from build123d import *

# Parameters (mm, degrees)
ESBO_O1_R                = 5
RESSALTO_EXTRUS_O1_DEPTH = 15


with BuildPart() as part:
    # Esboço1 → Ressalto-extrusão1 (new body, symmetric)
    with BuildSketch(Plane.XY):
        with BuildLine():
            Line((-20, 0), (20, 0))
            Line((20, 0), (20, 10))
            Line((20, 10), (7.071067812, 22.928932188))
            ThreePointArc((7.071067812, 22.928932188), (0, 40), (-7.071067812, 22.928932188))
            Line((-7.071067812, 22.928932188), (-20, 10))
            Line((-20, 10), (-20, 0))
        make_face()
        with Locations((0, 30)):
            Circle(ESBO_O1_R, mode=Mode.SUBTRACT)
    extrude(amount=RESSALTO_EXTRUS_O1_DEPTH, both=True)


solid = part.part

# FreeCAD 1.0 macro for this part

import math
import FreeCAD as App
import Part
import Sketcher
from FreeCAD import Vector

doc = App.newDocument("Part")
body = doc.addObject("PartDesign::Body", "Body")

# Sketch on XY plane
sketch1 = body.newObject("Sketcher::SketchObject", "Sketch")
sketch1.AttachmentSupport = (doc.getObject("XY_Plane"), [""])
sketch1.MapMode = "FlatFace"
sketch1.addGeometry([
    Part.LineSegment(Vector(-20, 0, 0), Vector(20, 0, 0)),  # 0
    Part.LineSegment(Vector(20, 0, 0), Vector(20, 10, 0)),  # 1
    Part.LineSegment(Vector(20, 10, 0), Vector(7, 23, 0)),  # 2
    Part.ArcOfCircle(Part.Circle(Vector(0, 30, 0), Vector(0, 0, 1), 10), math.radians(-45), math.radians(225)),  # 3
    Part.LineSegment(Vector(-7, 23, 0), Vector(-20, 10, 0)),  # 4
    Part.LineSegment(Vector(-20, 10, 0), Vector(-20, 0, 0)),  # 5
    Part.Circle(Vector(0, 30, 0), Vector(0, 0, 1), 5),  # 6
], False)
sketch1.addConstraint([
    Sketcher.Constraint("Coincident", 0, 2, 1, 1),
    Sketcher.Constraint("Coincident", 1, 2, 2, 1),
    Sketcher.Constraint("Coincident", 2, 2, 3, 1),
    Sketcher.Constraint("Coincident", 3, 2, 4, 1),
    Sketcher.Constraint("Coincident", 4, 2, 5, 1),
    Sketcher.Constraint("Coincident", 5, 2, 0, 1),
    Sketcher.Constraint("Horizontal", 0),
    Sketcher.Constraint("Vertical", 1),
    Sketcher.Constraint("Vertical", 5),
    Sketcher.Constraint("Coincident", 6, 3, 3, 3),
    Sketcher.Constraint("Symmetric", 0, 2, 5, 2, -1, 1),
    Sketcher.Constraint("Symmetric", 2, 2, 3, 2, -2),
    Sketcher.Constraint("Perpendicular", 2, 4),
    Sketcher.Constraint("Horizontal", 1, 2, 4, 2),
    Sketcher.Constraint("Diameter", 6, 10.0),
    Sketcher.Constraint("Radius", 3, 10.0),
    Sketcher.Constraint("DistanceX", 0, 1, 0, 2, 40.0),
    Sketcher.Constraint("DistanceY", 1, 1, 1, 2, 10.0),
    Sketcher.Constraint("DistanceY", -1, 1, 3, 3, 30.0),
])
pad1 = body.newObject("PartDesign::Pad", "Pad")
pad1.Profile = sketch1
pad1.Length = 30
pad1.Midplane = True

doc.recompute()
